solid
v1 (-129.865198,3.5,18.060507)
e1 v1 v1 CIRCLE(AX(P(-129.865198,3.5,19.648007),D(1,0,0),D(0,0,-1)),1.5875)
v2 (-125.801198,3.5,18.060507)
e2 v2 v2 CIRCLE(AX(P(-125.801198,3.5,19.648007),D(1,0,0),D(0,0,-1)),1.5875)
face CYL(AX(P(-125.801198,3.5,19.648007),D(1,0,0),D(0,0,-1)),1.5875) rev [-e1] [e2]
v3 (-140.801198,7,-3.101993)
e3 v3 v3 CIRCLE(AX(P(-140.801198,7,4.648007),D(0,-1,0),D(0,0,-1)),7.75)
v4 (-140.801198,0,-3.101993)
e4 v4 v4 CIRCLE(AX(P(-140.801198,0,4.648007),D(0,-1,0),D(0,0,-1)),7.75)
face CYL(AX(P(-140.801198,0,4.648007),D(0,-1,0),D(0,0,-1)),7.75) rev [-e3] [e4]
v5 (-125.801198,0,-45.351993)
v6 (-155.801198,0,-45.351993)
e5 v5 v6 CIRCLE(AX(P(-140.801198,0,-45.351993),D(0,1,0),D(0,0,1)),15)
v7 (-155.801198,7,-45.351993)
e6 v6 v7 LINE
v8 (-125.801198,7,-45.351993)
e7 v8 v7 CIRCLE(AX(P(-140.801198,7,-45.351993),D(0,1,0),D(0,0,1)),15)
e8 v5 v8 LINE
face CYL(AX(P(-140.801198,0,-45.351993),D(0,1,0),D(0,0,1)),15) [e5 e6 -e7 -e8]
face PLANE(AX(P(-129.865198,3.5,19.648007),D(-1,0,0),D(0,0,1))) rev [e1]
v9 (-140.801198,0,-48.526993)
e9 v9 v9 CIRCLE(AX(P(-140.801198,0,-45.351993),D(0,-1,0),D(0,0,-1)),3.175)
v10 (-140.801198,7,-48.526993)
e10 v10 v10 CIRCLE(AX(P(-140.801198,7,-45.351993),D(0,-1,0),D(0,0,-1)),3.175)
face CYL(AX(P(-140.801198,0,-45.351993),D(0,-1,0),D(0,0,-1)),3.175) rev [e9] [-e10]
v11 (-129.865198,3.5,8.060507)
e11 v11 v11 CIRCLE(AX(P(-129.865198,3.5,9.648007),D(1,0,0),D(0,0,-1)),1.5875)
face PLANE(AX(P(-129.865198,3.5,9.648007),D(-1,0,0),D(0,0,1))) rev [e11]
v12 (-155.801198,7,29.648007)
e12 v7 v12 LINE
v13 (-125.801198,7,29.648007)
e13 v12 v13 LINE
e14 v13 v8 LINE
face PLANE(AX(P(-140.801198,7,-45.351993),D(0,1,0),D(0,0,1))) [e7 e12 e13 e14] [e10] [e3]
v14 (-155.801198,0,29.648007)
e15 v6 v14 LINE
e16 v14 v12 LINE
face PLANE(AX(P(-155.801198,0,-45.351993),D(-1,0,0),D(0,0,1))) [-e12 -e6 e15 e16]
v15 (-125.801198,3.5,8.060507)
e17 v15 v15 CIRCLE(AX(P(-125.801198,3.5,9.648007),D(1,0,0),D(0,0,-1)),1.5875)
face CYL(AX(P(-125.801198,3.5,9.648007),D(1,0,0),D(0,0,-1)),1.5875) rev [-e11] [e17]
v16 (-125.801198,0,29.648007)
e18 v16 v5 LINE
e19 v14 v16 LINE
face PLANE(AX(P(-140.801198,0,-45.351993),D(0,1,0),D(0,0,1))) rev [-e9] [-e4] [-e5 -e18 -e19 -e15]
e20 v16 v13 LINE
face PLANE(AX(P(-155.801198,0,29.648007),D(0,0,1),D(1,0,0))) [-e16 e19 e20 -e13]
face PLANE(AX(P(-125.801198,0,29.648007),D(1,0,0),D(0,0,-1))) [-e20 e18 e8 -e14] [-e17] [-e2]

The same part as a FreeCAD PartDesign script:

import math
import FreeCAD as App
import Part
import Sketcher

doc = App.newDocument("Part")
body = doc.addObject("PartDesign::Body", "Body")

sketch1 = body.newObject("Sketcher::SketchObject", "Sketch")
sketch1.AttachmentSupport = (doc.getObject("XZ_Plane"), [""])
sketch1.MapMode = "FlatFace"
sketch1.AttachmentOffset = App.Placement(App.Vector(0, 0, -7), App.Rotation())
sketch1.addGeometry(Part.LineSegment(App.Vector(-125.801198, 29.648007, 0), App.Vector(-125.801198, -45.351993, 0)), False)
sketch1.addGeometry(Part.ArcOfCircle(Part.Circle(App.Vector(-140.801198, -45.351993, 0), App.Vector(0, 0, 1), 15), math.radians(180), math.radians(360)), False)
sketch1.addGeometry(Part.LineSegment(App.Vector(-155.801198, -45.351993, 0), App.Vector(-155.801198, 29.648007, 0)), False)
sketch1.addGeometry(Part.LineSegment(App.Vector(-155.801198, 29.648007, 0), App.Vector(-125.801198, 29.648007, 0)), False)
sketch1.addConstraint(Sketcher.Constraint("Tangent", 0, 2, 1, 2))
sketch1.addConstraint(Sketcher.Constraint("Tangent", 1, 1, 2, 1))
sketch1.addConstraint(Sketcher.Constraint("Coincident", 2, 2, 3, 1))
sketch1.addConstraint(Sketcher.Constraint("Coincident", 3, 2, 0, 1))
sketch1.addConstraint(Sketcher.Constraint("Vertical", 0))
sketch1.addConstraint(Sketcher.Constraint("Vertical", 2))
sketch1.addConstraint(Sketcher.Constraint("Horizontal", 3))
sketch1.addConstraint(Sketcher.Constraint("Radius", 1, 15.0))
sketch1.addConstraint(Sketcher.Constraint("DistanceY", 0, 2, 0, 1, 75.0))
sketch1.addConstraint(Sketcher.Constraint("DistanceX", 1, 3, -1, 1, 140.801198))
sketch1.addConstraint(Sketcher.Constraint("DistanceY", 1, 3, -1, 1, 45.351993))
pad1 = body.newObject("PartDesign::Pad", "Pad")
pad1.Profile = sketch1
pad1.Length = 7

sketch2 = body.newObject("Sketcher::SketchObject", "Sketch001")
sketch2.AttachmentSupport = (doc.getObject("YZ_Plane"), [""])
sketch2.MapMode = "FlatFace"
sketch2.AttachmentOffset = App.Placement(App.Vector(0, 0, -125.801198), App.Rotation())
sketch2.addGeometry(Part.Circle(App.Vector(3.5, 19.648007, 0), App.Vector(0, 0, 1), 1.5875), False)
sketch2.addGeometry(Part.Circle(App.Vector(3.5, 9.648007, 0), App.Vector(0, 0, 1), 1.5875), False)
sketch2.addConstraint(Sketcher.Constraint("Equal", 0, 1))
sketch2.addConstraint(Sketcher.Constraint("Vertical", 0, 3, 1, 3))
sketch2.addConstraint(Sketcher.Constraint("Diameter", 0, 3.175))
sketch2.addConstraint(Sketcher.Constraint("DistanceY", 1, 3, 0, 3, 10.0))
sketch2.addConstraint(Sketcher.Constraint("DistanceX", -1, 1, 0, 3, 3.5))
sketch2.addConstraint(Sketcher.Constraint("DistanceY", -1, 1, 0, 3, 19.648007))
doc.recompute()
hole = body.newObject("PartDesign::Hole", "Hole")
hole.Profile = sketch2
hole.ThreadType = "None"
hole.Diameter = 3.175
hole.DepthType = "Dimension"
hole.Depth = 4.064
hole.DrillPoint = "Flat"

sketch3 = body.newObject("Sketcher::SketchObject", "Sketch002")
sketch3.AttachmentSupport = (doc.getObject("XZ_Plane"), [""])
sketch3.MapMode = "FlatFace"
sketch3.addGeometry(Part.Circle(App.Vector(-140.801198, 4.648007, 0), App.Vector(0, 0, 1), 7.75), False)
sketch3.addConstraint(Sketcher.Constraint("Diameter", 0, 15.5))
sketch3.addConstraint(Sketcher.Constraint("DistanceX", 0, 3, -1, 1, 140.801198))
sketch3.addConstraint(Sketcher.Constraint("DistanceY", -1, 1, 0, 3, 4.648007))
doc.recompute()
hole2 = body.newObject("PartDesign::Hole", "Hole001")
hole2.Profile = sketch3
hole2.ThreadType = "None"
hole2.Diameter = 15.5
hole2.DepthType = "ThroughAll"

sketch4 = body.newObject("Sketcher::SketchObject", "Sketch003")
sketch4.AttachmentSupport = (doc.getObject("XZ_Plane"), [""])
sketch4.MapMode = "FlatFace"
sketch4.addGeometry(Part.Circle(App.Vector(-140.801198, -45.351993, 0), App.Vector(0, 0, 1), 3.175), False)
sketch4.addConstraint(Sketcher.Constraint("Diameter", 0, 6.35))
sketch4.addConstraint(Sketcher.Constraint("DistanceX", 0, 3, -1, 1, 140.801198))
sketch4.addConstraint(Sketcher.Constraint("DistanceY", 0, 3, -1, 1, 45.351993))
doc.recompute()
hole3 = body.newObject("PartDesign::Hole", "Hole002")
hole3.Profile = sketch4
hole3.ThreadType = "None"
hole3.Diameter = 6.35
hole3.DepthType = "ThroughAll"

doc.recompute()
